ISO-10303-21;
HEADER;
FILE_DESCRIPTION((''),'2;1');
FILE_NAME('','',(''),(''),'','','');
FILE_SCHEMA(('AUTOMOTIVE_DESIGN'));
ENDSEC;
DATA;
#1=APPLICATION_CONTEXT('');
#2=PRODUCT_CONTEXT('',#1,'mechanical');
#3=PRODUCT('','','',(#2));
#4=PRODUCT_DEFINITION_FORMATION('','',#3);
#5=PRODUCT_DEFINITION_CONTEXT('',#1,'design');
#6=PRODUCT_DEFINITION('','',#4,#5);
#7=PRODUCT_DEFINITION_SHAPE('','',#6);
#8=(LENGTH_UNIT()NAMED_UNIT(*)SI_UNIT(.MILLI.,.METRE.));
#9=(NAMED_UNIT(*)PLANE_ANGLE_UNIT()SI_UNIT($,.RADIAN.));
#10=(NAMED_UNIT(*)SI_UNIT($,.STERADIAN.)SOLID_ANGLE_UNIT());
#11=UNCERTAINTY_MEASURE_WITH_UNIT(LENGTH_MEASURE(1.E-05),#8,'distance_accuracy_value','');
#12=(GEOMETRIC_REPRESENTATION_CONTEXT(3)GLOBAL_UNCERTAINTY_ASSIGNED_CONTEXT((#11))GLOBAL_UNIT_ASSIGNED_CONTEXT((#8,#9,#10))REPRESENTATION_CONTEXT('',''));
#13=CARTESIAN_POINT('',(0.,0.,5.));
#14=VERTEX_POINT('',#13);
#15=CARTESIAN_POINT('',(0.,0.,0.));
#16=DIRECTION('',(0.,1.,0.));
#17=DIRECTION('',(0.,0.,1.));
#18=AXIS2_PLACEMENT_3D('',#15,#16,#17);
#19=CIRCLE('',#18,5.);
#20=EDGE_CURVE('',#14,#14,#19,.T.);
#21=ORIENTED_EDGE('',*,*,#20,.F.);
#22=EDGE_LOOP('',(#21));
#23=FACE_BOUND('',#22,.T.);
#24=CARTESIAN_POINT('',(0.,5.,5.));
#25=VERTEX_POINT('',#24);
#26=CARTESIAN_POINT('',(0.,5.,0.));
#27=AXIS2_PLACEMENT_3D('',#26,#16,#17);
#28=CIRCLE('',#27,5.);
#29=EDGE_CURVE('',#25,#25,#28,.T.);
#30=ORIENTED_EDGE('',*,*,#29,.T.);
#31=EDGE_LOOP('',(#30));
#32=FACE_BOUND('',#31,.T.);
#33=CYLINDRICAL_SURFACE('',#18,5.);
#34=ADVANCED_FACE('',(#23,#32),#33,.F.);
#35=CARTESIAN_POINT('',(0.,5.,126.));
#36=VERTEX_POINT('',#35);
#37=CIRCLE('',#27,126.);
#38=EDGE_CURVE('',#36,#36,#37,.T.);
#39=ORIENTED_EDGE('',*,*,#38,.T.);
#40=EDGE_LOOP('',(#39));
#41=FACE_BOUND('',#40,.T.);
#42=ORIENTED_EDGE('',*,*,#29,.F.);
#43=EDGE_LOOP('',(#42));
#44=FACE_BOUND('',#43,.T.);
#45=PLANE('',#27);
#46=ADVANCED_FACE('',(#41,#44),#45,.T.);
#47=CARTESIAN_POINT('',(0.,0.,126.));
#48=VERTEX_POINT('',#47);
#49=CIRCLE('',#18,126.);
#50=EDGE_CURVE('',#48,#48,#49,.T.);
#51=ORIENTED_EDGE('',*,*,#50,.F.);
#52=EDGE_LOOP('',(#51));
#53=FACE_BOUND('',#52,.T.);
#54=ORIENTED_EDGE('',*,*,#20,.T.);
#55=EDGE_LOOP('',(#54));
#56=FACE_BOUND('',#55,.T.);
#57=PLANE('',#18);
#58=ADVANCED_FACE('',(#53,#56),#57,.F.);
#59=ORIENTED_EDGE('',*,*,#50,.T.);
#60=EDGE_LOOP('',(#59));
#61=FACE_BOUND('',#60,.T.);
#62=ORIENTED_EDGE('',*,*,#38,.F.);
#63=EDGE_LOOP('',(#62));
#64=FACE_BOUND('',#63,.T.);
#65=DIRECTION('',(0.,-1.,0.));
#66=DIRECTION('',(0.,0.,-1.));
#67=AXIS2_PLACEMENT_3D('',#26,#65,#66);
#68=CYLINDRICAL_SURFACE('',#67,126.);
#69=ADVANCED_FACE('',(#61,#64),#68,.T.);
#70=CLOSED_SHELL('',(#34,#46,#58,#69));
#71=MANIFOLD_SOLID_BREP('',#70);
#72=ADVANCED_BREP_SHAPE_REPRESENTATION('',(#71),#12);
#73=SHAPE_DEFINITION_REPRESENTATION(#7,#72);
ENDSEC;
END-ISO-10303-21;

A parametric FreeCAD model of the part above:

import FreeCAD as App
import Part
import Sketcher
from FreeCAD import Vector

doc = App.newDocument("Part")
body = doc.addObject("PartDesign::Body", "Body")

# Sketch on XZ plane
sketch1 = body.newObject("Sketcher::SketchObject", "Sketch")
sketch1.AttachmentSupport = (doc.getObject("XZ_Plane"), [""])
sketch1.MapMode = "FlatFace"
sketch1.addGeometry(Part.Circle(Vector(0, 0, 0), Vector(0, 0, 1), 126), False)
sketch1.addConstraint(Sketcher.Constraint("Coincident", 0, 3, -1, 1))
sketch1.addConstraint(Sketcher.Constraint("Diameter", 0, 252.0))
pad1 = body.newObject("PartDesign::Pad", "Pad")
pad1.Profile = sketch1
pad1.Length = 5
pad1.Reversed = True

# Sketch on XZ plane
sketch2 = body.newObject("Sketcher::SketchObject", "Sketch001")
sketch2.AttachmentSupport = (doc.getObject("XZ_Plane"), [""])
sketch2.MapMode = "FlatFace"
sketch2.AttachmentOffset = App.Placement(Vector(0, 0, -5), App.Rotation())
sketch2.addGeometry(Part.Circle(Vector(0, 0, 0), Vector(0, 0, 1), 5), False)
sketch2.addConstraint(Sketcher.Constraint("Coincident", 0, 3, -1, 1))
sketch2.addConstraint(Sketcher.Constraint("Diameter", 0, 10.0))
pocket1 = body.newObject("PartDesign::Pocket", "Pocket")
pocket1.Profile = sketch2
pocket1.Length = 5
pocket1.Reversed = True

doc.recompute()
